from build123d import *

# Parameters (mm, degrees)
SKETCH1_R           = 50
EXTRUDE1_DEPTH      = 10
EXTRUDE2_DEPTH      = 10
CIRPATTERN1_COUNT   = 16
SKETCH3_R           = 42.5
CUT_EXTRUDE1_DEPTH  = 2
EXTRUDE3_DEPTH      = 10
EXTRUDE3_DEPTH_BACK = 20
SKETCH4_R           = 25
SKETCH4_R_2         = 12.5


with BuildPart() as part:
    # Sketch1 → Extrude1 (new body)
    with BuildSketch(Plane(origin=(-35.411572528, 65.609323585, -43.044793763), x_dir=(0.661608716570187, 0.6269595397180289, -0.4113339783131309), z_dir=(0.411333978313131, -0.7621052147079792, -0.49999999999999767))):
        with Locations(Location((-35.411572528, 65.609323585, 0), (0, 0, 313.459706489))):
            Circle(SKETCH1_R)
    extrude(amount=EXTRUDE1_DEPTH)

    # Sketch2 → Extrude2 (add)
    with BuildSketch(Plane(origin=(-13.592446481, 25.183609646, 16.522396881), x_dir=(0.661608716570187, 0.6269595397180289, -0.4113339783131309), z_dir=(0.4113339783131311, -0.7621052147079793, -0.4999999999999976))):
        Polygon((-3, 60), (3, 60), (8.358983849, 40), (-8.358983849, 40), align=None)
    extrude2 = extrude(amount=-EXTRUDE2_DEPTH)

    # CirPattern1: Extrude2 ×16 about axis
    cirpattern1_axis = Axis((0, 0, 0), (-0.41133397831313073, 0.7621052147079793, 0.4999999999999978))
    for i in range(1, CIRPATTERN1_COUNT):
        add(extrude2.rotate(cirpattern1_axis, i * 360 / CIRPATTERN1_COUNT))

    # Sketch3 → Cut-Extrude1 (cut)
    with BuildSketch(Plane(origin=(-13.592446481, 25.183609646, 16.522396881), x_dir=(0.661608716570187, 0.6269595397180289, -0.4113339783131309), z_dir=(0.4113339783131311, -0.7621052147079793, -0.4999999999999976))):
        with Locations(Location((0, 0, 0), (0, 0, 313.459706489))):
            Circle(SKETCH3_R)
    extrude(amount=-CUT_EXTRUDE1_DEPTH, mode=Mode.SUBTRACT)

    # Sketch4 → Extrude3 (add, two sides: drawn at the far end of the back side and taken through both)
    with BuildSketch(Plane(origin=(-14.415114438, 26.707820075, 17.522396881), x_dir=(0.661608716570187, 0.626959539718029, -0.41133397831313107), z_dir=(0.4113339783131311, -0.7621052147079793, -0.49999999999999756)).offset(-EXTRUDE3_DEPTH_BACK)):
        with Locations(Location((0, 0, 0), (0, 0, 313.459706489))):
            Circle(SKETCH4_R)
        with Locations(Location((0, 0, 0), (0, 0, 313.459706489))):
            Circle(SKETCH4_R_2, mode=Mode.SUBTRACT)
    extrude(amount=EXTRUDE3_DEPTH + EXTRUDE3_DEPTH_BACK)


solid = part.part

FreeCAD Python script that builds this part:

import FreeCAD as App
import Part
import Sketcher

V = App.Vector
Q = App.Units.Quantity

doc = App.newDocument("Part")
body = doc.addObject("PartDesign::Body", "Body")

# Sketch on an angled plane
sketch1 = body.newObject("Sketcher::SketchObject", "Sketch")
sketch1.Placement = App.Placement(V(-35.411573, 65.609324, -43.044794), App.Rotation(V(0.661608717, 0.62695954, -0.411333978), V(0.62695954, -0.161608717, 0.762105215), V(0.411333978, -0.762105215, -0.5), "ZXY"))
sketch1.addGeometry(Part.Circle(V(-35, 66, 0), V(0, 0, 1), 50), False)
sketch1.addConstraint(Sketcher.Constraint("Diameter", 0, Q("100 mm")))
sketch1.addConstraint(Sketcher.Constraint("DistanceX", 0, 3, -1, 1, Q("35.411573 mm")))
sketch1.addConstraint(Sketcher.Constraint("DistanceY", -1, 1, 0, 3, Q("65.609324 mm")))
pad1 = body.newObject("PartDesign::Pad", "Pad")
pad1.Profile = sketch1
pad1.Length = 10

# Sketch on an angled plane
sketch2 = body.newObject("Sketcher::SketchObject", "Sketch001")
sketch2.Placement = App.Placement(V(-13.592446, 25.18361, 16.522397), App.Rotation(V(0.661608717, 0.62695954, -0.411333978), V(0.62695954, -0.161608717, 0.762105215), V(0.411333978, -0.762105215, -0.5), "ZXY"))
sketch2.addGeometry(Part.LineSegment(V(3, 60, 0), V(-3, 60, 0)), False)
sketch2.addGeometry(Part.LineSegment(V(-3, 60, 0), V(-8, 40, 0)), False)
sketch2.addGeometry(Part.LineSegment(V(-8, 40, 0), V(8, 40, 0)), False)
sketch2.addGeometry(Part.LineSegment(V(8, 40, 0), V(3, 60, 0)), False)
sketch2.addConstraint(Sketcher.Constraint("Coincident", 0, 2, 1, 1))
sketch2.addConstraint(Sketcher.Constraint("Coincident", 1, 2, 2, 1))
sketch2.addConstraint(Sketcher.Constraint("Coincident", 2, 2, 3, 1))
sketch2.addConstraint(Sketcher.Constraint("Coincident", 3, 2, 0, 1))
sketch2.addConstraint(Sketcher.Constraint("Horizontal", 0))
sketch2.addConstraint(Sketcher.Constraint("Horizontal", 2))
sketch2.addConstraint(Sketcher.Constraint("Equal", 1, 3))
sketch2.addConstraint(Sketcher.Constraint("DistanceX", 0, 2, 0, 1, Q("6 mm")))
sketch2.addConstraint(Sketcher.Constraint("Angle", 1, Q("-105 deg")))
sketch2.addConstraint(Sketcher.Constraint("DistanceX", 0, 2, -1, 1, Q("3 mm")))
sketch2.addConstraint(Sketcher.Constraint("DistanceY", -1, 1, 0, 2, Q("60 mm")))
sketch2.addConstraint(Sketcher.Constraint("DistanceY", -1, 1, 1, 2, Q("40 mm")))
pad2 = body.newObject("PartDesign::Pad", "Pad001")
pad2.Profile = sketch2
pad2.Length = 10
pad2.Reversed = True
doc.recompute()

datumline = body.newObject("PartDesign::Line", "DatumLine")
datumline.Placement = App.Placement(V(0, 0, 0), App.Rotation(V(0, 0, 1), V(-0.411333978, 0.762105215, 0.5)))
polarpattern = body.newObject("PartDesign::PolarPattern", "PolarPattern")
polarpattern.Originals = [pad2]
polarpattern.Axis = (datumline, [""])
polarpattern.Angle = 360
polarpattern.Occurrences = 16
body.Tip = polarpattern

# Sketch on an angled plane
sketch3 = body.newObject("Sketcher::SketchObject", "Sketch002")
sketch3.Placement = App.Placement(V(-13.592446, 25.18361, 16.522397), App.Rotation(V(0.661608717, 0.62695954, -0.411333978), V(0.62695954, -0.161608717, 0.762105215), V(0.411333978, -0.762105215, -0.5), "ZXY"))
sketch3.addGeometry(Part.Circle(V(0, 0, 0), V(0, 0, 1), 42), False)
sketch3.addConstraint(Sketcher.Constraint("Coincident", 0, 3, -1, 1))
sketch3.addConstraint(Sketcher.Constraint("Diameter", 0, Q("85 mm")))
pocket1 = body.newObject("PartDesign::Pocket", "Pocket")
pocket1.Profile = sketch3
pocket1.Length = 2

# Sketch on an angled plane
sketch4 = body.newObject("Sketcher::SketchObject", "Sketch003")
sketch4.Placement = App.Placement(V(-14.415114, 26.70782, 17.522397), App.Rotation(V(0.661608717, 0.62695954, -0.411333978), V(0.62695954, -0.161608717, 0.762105215), V(0.411333978, -0.762105215, -0.5), "ZXY"))
sketch4.addGeometry(Part.Circle(V(0, 0, 0), V(0, 0, 1), 25), False)
sketch4.addGeometry(Part.Circle(V(0, 0, 0), V(0, 0, 1), 12), False)
sketch4.addConstraint(Sketcher.Constraint("Coincident", 0, 3, -1, 1))
sketch4.addConstraint(Sketcher.Constraint("Coincident", 1, 3, -1, 1))
sketch4.addConstraint(Sketcher.Constraint("Diameter", 0, Q("50 mm")))
sketch4.addConstraint(Sketcher.Constraint("Diameter", 1, Q("25 mm")))
pad3 = body.newObject("PartDesign::Pad", "Pad002")
pad3.Profile = sketch4
pad3.Type = "TwoLengths"
pad3.Length = 10
pad3.Length2 = 20

doc.recompute()
